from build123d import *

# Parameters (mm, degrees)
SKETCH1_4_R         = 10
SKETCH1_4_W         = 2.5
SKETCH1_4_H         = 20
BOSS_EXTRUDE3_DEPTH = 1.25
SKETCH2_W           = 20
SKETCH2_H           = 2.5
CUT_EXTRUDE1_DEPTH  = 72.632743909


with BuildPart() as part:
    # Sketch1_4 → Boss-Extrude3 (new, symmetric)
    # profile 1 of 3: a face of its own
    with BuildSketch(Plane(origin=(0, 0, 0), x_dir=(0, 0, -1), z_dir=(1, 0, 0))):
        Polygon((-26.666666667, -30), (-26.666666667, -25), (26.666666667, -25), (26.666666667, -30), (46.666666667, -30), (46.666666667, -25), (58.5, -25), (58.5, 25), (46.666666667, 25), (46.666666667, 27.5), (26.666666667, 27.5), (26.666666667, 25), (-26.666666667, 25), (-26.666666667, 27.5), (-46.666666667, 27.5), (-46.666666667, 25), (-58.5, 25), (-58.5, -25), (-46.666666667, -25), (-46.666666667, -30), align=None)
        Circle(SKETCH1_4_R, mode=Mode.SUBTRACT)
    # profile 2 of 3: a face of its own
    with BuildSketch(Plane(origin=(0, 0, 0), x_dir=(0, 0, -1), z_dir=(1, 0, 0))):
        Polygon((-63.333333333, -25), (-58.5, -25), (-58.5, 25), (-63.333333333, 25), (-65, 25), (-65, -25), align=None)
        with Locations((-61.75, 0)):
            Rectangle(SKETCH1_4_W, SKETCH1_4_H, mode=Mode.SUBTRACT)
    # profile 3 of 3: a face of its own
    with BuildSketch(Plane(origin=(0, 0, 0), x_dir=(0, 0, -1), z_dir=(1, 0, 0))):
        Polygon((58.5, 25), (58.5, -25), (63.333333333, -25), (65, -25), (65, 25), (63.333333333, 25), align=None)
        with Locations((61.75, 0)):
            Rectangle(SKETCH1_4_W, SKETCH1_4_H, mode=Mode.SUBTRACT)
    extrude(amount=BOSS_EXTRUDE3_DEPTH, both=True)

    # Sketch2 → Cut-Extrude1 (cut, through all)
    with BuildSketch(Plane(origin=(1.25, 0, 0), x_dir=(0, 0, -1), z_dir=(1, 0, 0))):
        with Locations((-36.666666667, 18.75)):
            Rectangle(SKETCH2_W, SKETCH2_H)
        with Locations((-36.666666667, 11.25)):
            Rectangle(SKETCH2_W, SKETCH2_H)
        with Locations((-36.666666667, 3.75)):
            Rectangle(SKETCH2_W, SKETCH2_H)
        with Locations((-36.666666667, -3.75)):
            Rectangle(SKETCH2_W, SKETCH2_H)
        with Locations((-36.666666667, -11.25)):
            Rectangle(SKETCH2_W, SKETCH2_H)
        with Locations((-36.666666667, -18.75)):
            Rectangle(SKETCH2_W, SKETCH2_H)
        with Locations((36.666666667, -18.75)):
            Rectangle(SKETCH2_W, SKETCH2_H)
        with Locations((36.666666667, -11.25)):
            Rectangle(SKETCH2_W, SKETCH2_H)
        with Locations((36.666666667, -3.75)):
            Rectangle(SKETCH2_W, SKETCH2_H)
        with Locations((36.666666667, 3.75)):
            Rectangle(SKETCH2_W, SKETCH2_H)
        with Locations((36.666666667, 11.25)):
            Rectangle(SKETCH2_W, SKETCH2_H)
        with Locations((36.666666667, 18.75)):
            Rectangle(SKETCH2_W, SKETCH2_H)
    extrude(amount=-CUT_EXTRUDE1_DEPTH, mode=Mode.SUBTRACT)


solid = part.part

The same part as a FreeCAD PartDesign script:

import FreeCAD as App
import Part
import Sketcher

V = App.Vector


def add_polygon(sketch, points):
    """Adds a closed chain of lines whose ends are joined by coincident constraints."""
    first, n = sketch.GeometryCount, len(points)
    for a, b in zip(points, points[1:] + points[:1]):
        sketch.addGeometry(Part.LineSegment(App.Vector(*a, 0), App.Vector(*b, 0)), False)
    for i in range(n):
        sketch.addConstraint(Sketcher.Constraint("Coincident", first + i, 2, first + (i + 1) % n, 1))

doc = App.newDocument("Part")
body = doc.addObject("PartDesign::Body", "Body")

sketch1 = body.newObject("Sketcher::SketchObject", "Sketch")
sketch1.AttachmentSupport = (doc.getObject("YZ_Plane"), [""])
sketch1.MapMode = "FlatFace"
add_polygon(sketch1, [(-30, 26.7), (-25, 26.7), (-25, -26.7), (-30, -26.7), (-30, -46.7), (-25, -46.7), (-25, -65), (25, -65), (25, -46.7), (27.5, -46.7), (27.5, -26.7), (25, -26.7), (25, 26.7), (27.5, 26.7), (27.5, 46.7), (25, 46.7), (25, 65), (-25, 65), (-25, 46.7), (-30, 46.7)])
sketch1.addGeometry(Part.Circle(V(0, 0, 0), V(0, 0, 1), 10), False)
add_polygon(sketch1, [(-10, 63), (10, 63), (10, 60.5), (-10, 60.5)])
add_polygon(sketch1, [(-10, -60.5), (10, -60.5), (10, -63), (-10, -63)])
sketch1.addConstraint([
    Sketcher.Constraint("Horizontal", 0),
    Sketcher.Constraint("Vertical", 1),
    Sketcher.Constraint("Horizontal", 2),
    Sketcher.Constraint("Vertical", 3),
    Sketcher.Constraint("Horizontal", 4),
    Sketcher.Constraint("Vertical", 5),
    Sketcher.Constraint("Horizontal", 6),
    Sketcher.Constraint("Vertical", 7),
    Sketcher.Constraint("Horizontal", 8),
    Sketcher.Constraint("Vertical", 9),
    Sketcher.Constraint("Horizontal", 10),
    Sketcher.Constraint("Vertical", 11),
    Sketcher.Constraint("Horizontal", 12),
    Sketcher.Constraint("Vertical", 13),
    Sketcher.Constraint("Horizontal", 14),
    Sketcher.Constraint("Vertical", 15),
    Sketcher.Constraint("Horizontal", 16),
    Sketcher.Constraint("Vertical", 17),
    Sketcher.Constraint("Horizontal", 18),
    Sketcher.Constraint("Vertical", 19),
    Sketcher.Constraint("Horizontal", 21),
    Sketcher.Constraint("Vertical", 22),
    Sketcher.Constraint("Horizontal", 23),
    Sketcher.Constraint("Vertical", 24),
    Sketcher.Constraint("Horizontal", 25),
    Sketcher.Constraint("Vertical", 26),
    Sketcher.Constraint("Horizontal", 27),
    Sketcher.Constraint("Vertical", 28),
    Sketcher.Constraint("Coincident", 20, 3, -1, 1),
    Sketcher.Constraint("Symmetric", 0, 2, 10, 2, -1, 1),
    Sketcher.Constraint("Symmetric", 4, 2, 14, 2, -1, 1),
    Sketcher.Constraint("Symmetric", 6, 2, 16, 2, -1, 1),
    Sketcher.Constraint("Symmetric", 23, 2, 25, 2, -1, 1),
    Sketcher.Constraint("Symmetric", 21, 2, 27, 2, -1, 1),
    Sketcher.Constraint("Symmetric", 4, 2, 7, 2, -2),
    Sketcher.Constraint("Symmetric", 9, 2, 12, 2, -1),
    Sketcher.Constraint("Symmetric", 3, 2, 18, 2, -1),
    Sketcher.Constraint("Horizontal", 2, 2, 9, 2),
    Sketcher.Constraint("Vertical", 1, 2, 4, 2),
    Sketcher.Constraint("Vertical", 22, 2, 25, 2),
    Sketcher.Constraint("Equal", 27, 3),
    Sketcher.Constraint("Equal", 14, 22),
    Sketcher.Constraint("Diameter", 20, 20.0),
    Sketcher.Constraint("DistanceX", 0, 1, 0, 2, 5.0),
    Sketcher.Constraint("DistanceX", 6, 1, 6, 2, 50.0),
    Sketcher.Constraint("DistanceX", 21, 1, 21, 2, 20.0),
    Sketcher.Constraint("DistanceX", 8, 1, 8, 2, 2.5),
    Sketcher.Constraint("DistanceY", 5, 2, -1, 1, 65.0),
    Sketcher.Constraint("DistanceY", -1, 1, 21, 2, 63.0),
    Sketcher.Constraint("DistanceY", 1, 2, 1, 1, 53.333333),
])
pad1 = body.newObject("PartDesign::Pad", "Pad")
pad1.Profile = sketch1
pad1.Length = 2.5
pad1.Midplane = True

sketch2 = body.newObject("Sketcher::SketchObject", "Sketch001")
sketch2.AttachmentSupport = (doc.getObject("YZ_Plane"), [""])
sketch2.MapMode = "FlatFace"
sketch2.AttachmentOffset = App.Placement(V(0, 0, 1.25), App.Rotation())
add_polygon(sketch2, [(20, 46.7), (17.5, 46.7), (17.5, 26.7), (20, 26.7)])
add_polygon(sketch2, [(12.5, 46.7), (10, 46.7), (10, 26.7), (12.5, 26.7)])
add_polygon(sketch2, [(5, 46.7), (2.5, 46.7), (2.5, 26.7), (5, 26.7)])
add_polygon(sketch2, [(-2.5, 46.7), (-5, 46.7), (-5, 26.7), (-2.5, 26.7)])
add_polygon(sketch2, [(-10, 46.7), (-12.5, 46.7), (-12.5, 26.7), (-10, 26.7)])
add_polygon(sketch2, [(-17.5, 46.7), (-20, 46.7), (-20, 26.7), (-17.5, 26.7)])
add_polygon(sketch2, [(-17.5, -26.7), (-20, -26.7), (-20, -46.7), (-17.5, -46.7)])
add_polygon(sketch2, [(-10, -26.7), (-12.5, -26.7), (-12.5, -46.7), (-10, -46.7)])
add_polygon(sketch2, [(-2.5, -26.7), (-5, -26.7), (-5, -46.7), (-2.5, -46.7)])
add_polygon(sketch2, [(5, -26.7), (2.5, -26.7), (2.5, -46.7), (5, -46.7)])
add_polygon(sketch2, [(12.5, -26.7), (10, -26.7), (10, -46.7), (12.5, -46.7)])
add_polygon(sketch2, [(20, -26.7), (17.5, -26.7), (17.5, -46.7), (20, -46.7)])
sketch2.addConstraint([
    Sketcher.Constraint("Horizontal", 0),
    Sketcher.Constraint("Vertical", 1),
    Sketcher.Constraint("Horizontal", 2),
    Sketcher.Constraint("Vertical", 3),
    Sketcher.Constraint("Horizontal", 4),
    Sketcher.Constraint("Vertical", 5),
    Sketcher.Constraint("Horizontal", 6),
    Sketcher.Constraint("Vertical", 7),
    Sketcher.Constraint("Horizontal", 8),
    Sketcher.Constraint("Vertical", 9),
    Sketcher.Constraint("Horizontal", 10),
    Sketcher.Constraint("Vertical", 11),
    Sketcher.Constraint("Horizontal", 12),
    Sketcher.Constraint("Vertical", 13),
    Sketcher.Constraint("Horizontal", 14),
    Sketcher.Constraint("Vertical", 15),
    Sketcher.Constraint("Horizontal", 16),
    Sketcher.Constraint("Vertical", 17),
    Sketcher.Constraint("Horizontal", 18),
    Sketcher.Constraint("Vertical", 19),
    Sketcher.Constraint("Horizontal", 20),
    Sketcher.Constraint("Vertical", 21),
    Sketcher.Constraint("Horizontal", 22),
    Sketcher.Constraint("Vertical", 23),
    Sketcher.Constraint("Horizontal", 24),
    Sketcher.Constraint("Vertical", 25),
    Sketcher.Constraint("Horizontal", 26),
    Sketcher.Constraint("Vertical", 27),
    Sketcher.Constraint("Horizontal", 28),
    Sketcher.Constraint("Vertical", 29),
    Sketcher.Constraint("Horizontal", 30),
    Sketcher.Constraint("Vertical", 31),
    Sketcher.Constraint("Horizontal", 32),
    Sketcher.Constraint("Vertical", 33),
    Sketcher.Constraint("Horizontal", 34),
    Sketcher.Constraint("Vertical", 35),
    Sketcher.Constraint("Horizontal", 36),
    Sketcher.Constraint("Vertical", 37),
    Sketcher.Constraint("Horizontal", 38),
    Sketcher.Constraint("Vertical", 39),
    Sketcher.Constraint("Horizontal", 40),
    Sketcher.Constraint("Vertical", 41),
    Sketcher.Constraint("Horizontal", 42),
    Sketcher.Constraint("Vertical", 43),
    Sketcher.Constraint("Horizontal", 44),
    Sketcher.Constraint("Vertical", 45),
    Sketcher.Constraint("Horizontal", 46),
    Sketcher.Constraint("Vertical", 47),
    Sketcher.Constraint("Symmetric", 2, 2, 24, 2, -1, 1),
    Sketcher.Constraint("Symmetric", 0, 2, 26, 2, -1, 1),
    Sketcher.Constraint("Symmetric", 6, 2, 28, 2, -1, 1),
    Sketcher.Constraint("Symmetric", 4, 2, 30, 2, -1, 1),
    Sketcher.Constraint("Symmetric", 10, 2, 32, 2, -1, 1),
    Sketcher.Constraint("Symmetric", 8, 2, 34, 2, -1, 1),
    Sketcher.Constraint("Symmetric", 14, 2, 36, 2, -1, 1),
    Sketcher.Constraint("Symmetric", 12, 2, 38, 2, -1, 1),
    Sketcher.Constraint("Symmetric", 18, 2, 40, 2, -1, 1),
    Sketcher.Constraint("Symmetric", 16, 2, 42, 2, -1, 1),
    Sketcher.Constraint("Symmetric", 22, 2, 44, 2, -1, 1),
    Sketcher.Constraint("Symmetric", 20, 2, 46, 2, -1, 1),
    Sketcher.Constraint("Symmetric", 11, 2, 12, 2, -2),
    Sketcher.Constraint("Symmetric", 9, 2, 14, 2, -2),
    Sketcher.Constraint("Symmetric", 7, 2, 16, 2, -2),
    Sketcher.Constraint("Symmetric", 5, 2, 18, 2, -2),
    Sketcher.Constraint("Symmetric", 3, 2, 20, 2, -2),
    Sketcher.Constraint("Symmetric", 1, 2, 22, 2, -2),
    Sketcher.Constraint("Horizontal", 3, 2, 4, 2),
    Sketcher.Constraint("Horizontal", 2, 2, 5, 2),
    Sketcher.Constraint("Horizontal", 7, 2, 8, 2),
    Sketcher.Constraint("Horizontal", 6, 2, 9, 2),
    Sketcher.Constraint("Equal", 2, 4),
    Sketcher.Constraint("Equal", 6, 8),
    Sketcher.Constraint("DistanceY", 1, 2, 1, 1, 20.0),
    Sketcher.Constraint("DistanceX", 0, 2, 0, 1, 2.5),
    Sketcher.Constraint("DistanceX", -1, 1, 2, 2, 20.0),
    Sketcher.Constraint("DistanceX", -1, 1, 4, 2, 10.0),
    Sketcher.Constraint("DistanceX", -1, 1, 10, 2, 5.0),
    Sketcher.Constraint("DistanceY", -1, 1, 0, 2, 46.666667),
])
pocket1 = body.newObject("PartDesign::Pocket", "Pocket")
pocket1.Profile = sketch2
pocket1.Type = "ThroughAll"

doc.recompute()
